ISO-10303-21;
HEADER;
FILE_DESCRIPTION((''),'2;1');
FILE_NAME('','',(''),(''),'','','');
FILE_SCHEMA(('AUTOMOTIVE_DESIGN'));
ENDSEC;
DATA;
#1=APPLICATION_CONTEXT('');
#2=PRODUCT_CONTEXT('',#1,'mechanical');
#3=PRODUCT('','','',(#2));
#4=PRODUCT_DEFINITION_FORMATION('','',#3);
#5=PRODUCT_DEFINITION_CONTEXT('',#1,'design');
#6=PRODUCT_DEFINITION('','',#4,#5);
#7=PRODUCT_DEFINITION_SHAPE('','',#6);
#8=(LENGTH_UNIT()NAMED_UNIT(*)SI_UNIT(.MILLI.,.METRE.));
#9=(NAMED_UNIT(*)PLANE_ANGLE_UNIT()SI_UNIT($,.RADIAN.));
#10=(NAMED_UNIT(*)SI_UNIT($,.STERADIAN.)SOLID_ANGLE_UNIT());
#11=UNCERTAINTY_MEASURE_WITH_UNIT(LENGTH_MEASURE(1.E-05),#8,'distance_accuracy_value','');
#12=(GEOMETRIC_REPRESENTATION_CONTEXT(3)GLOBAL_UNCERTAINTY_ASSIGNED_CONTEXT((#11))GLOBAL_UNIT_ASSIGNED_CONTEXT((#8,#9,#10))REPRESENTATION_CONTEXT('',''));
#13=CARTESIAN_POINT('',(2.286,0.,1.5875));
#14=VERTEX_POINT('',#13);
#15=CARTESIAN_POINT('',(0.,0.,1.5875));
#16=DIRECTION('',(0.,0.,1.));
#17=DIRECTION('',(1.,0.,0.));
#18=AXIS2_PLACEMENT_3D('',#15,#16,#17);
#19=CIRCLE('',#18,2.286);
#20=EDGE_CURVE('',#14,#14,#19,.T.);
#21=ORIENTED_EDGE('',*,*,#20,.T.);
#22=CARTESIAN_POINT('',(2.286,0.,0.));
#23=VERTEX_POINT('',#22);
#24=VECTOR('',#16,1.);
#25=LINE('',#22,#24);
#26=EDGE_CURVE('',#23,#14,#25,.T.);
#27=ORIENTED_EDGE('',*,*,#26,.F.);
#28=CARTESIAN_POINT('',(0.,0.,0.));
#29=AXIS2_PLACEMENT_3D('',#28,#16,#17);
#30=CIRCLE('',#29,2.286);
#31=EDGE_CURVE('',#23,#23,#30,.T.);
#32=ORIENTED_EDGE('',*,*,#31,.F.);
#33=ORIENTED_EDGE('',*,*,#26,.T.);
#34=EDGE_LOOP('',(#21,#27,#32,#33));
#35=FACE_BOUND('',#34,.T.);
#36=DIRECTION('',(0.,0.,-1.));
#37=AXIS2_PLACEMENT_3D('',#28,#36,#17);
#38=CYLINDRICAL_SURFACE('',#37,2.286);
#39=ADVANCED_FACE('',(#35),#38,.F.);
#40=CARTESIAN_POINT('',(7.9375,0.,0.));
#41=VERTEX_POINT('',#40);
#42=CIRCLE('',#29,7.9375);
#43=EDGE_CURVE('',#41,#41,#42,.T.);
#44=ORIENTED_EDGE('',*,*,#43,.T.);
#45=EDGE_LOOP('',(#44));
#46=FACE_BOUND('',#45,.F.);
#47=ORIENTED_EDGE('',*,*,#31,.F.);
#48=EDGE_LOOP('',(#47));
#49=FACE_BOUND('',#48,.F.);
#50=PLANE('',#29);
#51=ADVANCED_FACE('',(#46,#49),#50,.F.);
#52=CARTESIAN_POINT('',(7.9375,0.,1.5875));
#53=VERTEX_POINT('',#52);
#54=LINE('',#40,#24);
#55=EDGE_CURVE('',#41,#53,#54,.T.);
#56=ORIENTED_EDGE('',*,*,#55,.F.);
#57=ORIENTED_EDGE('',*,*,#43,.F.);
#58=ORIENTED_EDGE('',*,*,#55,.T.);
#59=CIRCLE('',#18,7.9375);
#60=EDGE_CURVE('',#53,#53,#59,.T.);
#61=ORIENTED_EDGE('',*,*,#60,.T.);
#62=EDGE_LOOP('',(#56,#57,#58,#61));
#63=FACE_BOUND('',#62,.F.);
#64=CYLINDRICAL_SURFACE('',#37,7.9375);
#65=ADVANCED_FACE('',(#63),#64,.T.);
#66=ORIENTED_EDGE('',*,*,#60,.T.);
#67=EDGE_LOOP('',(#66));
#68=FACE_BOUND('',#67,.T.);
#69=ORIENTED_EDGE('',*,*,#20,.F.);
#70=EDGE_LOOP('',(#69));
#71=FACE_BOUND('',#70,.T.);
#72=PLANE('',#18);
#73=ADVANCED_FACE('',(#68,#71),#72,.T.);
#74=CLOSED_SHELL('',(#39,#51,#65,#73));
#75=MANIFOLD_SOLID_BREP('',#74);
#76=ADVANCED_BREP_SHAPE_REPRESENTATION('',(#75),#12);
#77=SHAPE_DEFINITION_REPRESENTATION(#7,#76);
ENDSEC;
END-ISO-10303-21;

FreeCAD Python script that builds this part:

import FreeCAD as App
import Part
import Sketcher
Q = App.Units.Quantity

doc = App.newDocument("Part")
body = doc.addObject("PartDesign::Body", "Body")

# Sketch on XY plane
sketch1 = body.newObject("Sketcher::SketchObject", "Sketch")
sketch1.AttachmentSupport = (doc.getObject("XY_Plane"), [""])
sketch1.MapMode = "FlatFace"
sketch1.addGeometry([
    Part.Circle(App.Vector(0, 0, 0), App.Vector(0, 0, 1), 7.9375),
    Part.Circle(App.Vector(0, 0, 0), App.Vector(0, 0, 1), 2.286),
], False)
sketch1.addConstraint([
    Sketcher.Constraint("Coincident", 0, 3, -1, 1),
    Sketcher.Constraint("Coincident", 1, 3, -1, 1),
    Sketcher.Constraint("Diameter", 1, Q("0.18 in")),
    Sketcher.Constraint("Diameter", 0, Q("0.625 in")),
])
pad1 = body.newObject("PartDesign::Pad", "Pad")
pad1.Profile = sketch1
pad1.Length = Q("0.0625 in")

doc.recompute()
